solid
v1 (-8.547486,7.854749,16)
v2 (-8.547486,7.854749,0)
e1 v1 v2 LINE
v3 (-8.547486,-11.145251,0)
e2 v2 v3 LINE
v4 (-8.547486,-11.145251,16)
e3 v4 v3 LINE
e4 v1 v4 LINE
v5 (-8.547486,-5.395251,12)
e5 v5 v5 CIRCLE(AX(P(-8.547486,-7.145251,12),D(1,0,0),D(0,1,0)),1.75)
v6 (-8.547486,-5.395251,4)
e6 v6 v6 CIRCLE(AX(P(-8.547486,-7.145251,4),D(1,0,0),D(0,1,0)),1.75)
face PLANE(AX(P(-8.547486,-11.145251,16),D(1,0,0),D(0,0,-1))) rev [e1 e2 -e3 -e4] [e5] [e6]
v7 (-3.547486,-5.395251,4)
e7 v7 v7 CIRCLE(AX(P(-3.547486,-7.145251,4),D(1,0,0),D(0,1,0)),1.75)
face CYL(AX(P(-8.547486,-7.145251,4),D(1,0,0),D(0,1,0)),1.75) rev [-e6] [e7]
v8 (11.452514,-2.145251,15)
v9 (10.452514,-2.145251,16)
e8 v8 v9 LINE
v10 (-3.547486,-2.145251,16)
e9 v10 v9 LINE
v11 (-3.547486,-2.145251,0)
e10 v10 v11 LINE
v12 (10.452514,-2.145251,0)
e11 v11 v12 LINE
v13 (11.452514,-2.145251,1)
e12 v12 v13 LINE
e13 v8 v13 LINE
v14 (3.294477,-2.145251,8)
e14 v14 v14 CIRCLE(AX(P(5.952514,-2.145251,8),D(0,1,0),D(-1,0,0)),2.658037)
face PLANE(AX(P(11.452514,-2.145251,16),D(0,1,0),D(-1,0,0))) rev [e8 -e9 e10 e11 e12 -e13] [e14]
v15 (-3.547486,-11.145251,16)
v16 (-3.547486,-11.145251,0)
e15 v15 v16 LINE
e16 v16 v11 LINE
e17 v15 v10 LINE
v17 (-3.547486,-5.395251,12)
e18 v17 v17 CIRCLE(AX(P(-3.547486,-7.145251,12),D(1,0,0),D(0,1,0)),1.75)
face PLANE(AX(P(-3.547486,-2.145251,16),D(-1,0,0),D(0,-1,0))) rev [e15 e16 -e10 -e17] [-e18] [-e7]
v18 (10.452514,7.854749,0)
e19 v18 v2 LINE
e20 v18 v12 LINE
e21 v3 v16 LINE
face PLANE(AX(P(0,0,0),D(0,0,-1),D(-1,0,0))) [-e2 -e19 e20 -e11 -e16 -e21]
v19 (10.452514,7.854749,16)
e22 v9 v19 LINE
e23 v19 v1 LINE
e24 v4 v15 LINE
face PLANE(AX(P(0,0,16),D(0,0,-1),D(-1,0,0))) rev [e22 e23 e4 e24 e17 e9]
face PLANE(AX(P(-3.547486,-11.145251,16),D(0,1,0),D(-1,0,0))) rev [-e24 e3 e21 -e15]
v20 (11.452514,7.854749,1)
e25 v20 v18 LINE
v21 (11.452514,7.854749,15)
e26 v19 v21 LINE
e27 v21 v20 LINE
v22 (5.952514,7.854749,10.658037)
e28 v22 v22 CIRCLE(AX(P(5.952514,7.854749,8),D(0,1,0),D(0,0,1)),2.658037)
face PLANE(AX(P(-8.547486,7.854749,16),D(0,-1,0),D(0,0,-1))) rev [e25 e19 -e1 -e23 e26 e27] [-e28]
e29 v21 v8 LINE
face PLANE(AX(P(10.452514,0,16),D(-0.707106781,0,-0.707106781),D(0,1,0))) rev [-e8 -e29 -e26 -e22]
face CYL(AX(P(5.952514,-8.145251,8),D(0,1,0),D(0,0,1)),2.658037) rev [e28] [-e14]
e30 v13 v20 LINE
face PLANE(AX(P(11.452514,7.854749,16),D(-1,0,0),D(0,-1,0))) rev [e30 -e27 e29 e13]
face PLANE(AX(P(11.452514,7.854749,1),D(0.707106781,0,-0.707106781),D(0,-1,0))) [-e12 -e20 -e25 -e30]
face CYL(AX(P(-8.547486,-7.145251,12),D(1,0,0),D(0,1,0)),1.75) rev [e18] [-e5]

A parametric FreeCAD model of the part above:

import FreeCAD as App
import Part
import Sketcher


def edges_at(feature, points):
    """Names of the edges that pass closest to the given points."""
    edges = feature.Shape.Edges
    near = lambda p: min(range(len(edges)), key=lambda i: edges[i].distToShape(Part.Vertex(*p))[0])
    return sorted({f"Edge{near(p) + 1}" for p in points})


def add_polygon(sketch, points):
    """Adds a closed chain of lines whose ends are joined by coincident constraints."""
    first, n = sketch.GeometryCount, len(points)
    for a, b in zip(points, points[1:] + points[:1]):
        sketch.addGeometry(Part.LineSegment(App.Vector(*a, 0), App.Vector(*b, 0)), False)
    for i in range(n):
        sketch.addConstraint(Sketcher.Constraint("Coincident", first + i, 2, first + (i + 1) % n, 1))

doc = App.newDocument("Part")
body = doc.addObject("PartDesign::Body", "Body")

# Sketch on XY plane
sketch1 = body.newObject("Sketcher::SketchObject", "Sketch")
sketch1.AttachmentSupport = (doc.getObject("XY_Plane"), [""])
sketch1.MapMode = "FlatFace"
add_polygon(sketch1, [(11, 8), (-9, 8), (-9, -11), (-4, -11), (-4, -2), (11, -2)])  # lines 0-5
sketch1.addConstraint([
    Sketcher.Constraint("Horizontal", 0),
    Sketcher.Constraint("Vertical", 1),
    Sketcher.Constraint("Horizontal", 2),
    Sketcher.Constraint("Vertical", 3),
    Sketcher.Constraint("Horizontal", 4),
    Sketcher.Constraint("Vertical", 5),
    Sketcher.Constraint("DistanceX", 0, 2, 0, 1, 20.0),
    Sketcher.Constraint("DistanceX", 2, 1, 2, 2, 5.0),
    Sketcher.Constraint("DistanceY", 1, 2, 1, 1, 19.0),
    Sketcher.Constraint("DistanceY", 3, 1, 3, 2, 9.0),
    Sketcher.Constraint("DistanceY", -1, 1, 0, 2, 7.854749),
    Sketcher.Constraint("DistanceX", 0, 2, -1, 1, 8.547486),
])
pad1 = body.newObject("PartDesign::Pad", "Pad")
pad1.Profile = sketch1
pad1.Length = 16

# Sketch on XZ plane
sketch2 = body.newObject("Sketcher::SketchObject", "Sketch001")
sketch2.AttachmentSupport = (doc.getObject("XZ_Plane"), [""])
sketch2.MapMode = "FlatFace"
sketch2.AttachmentOffset = App.Placement(App.Vector(0, 0, -7.854749), App.Rotation())
sketch2.addGeometry(Part.Circle(App.Vector(6, 8, 0), App.Vector(0, 0, 1), 2.7), False)
sketch2.addConstraint([
    Sketcher.Constraint("DistanceY", -1, 1, 0, 3, 8.0),
    Sketcher.Constraint("Diameter", 0, 5.316074),
    Sketcher.Constraint("DistanceX", -1, 1, 0, 3, 5.952514),
])
pocket1 = body.newObject("PartDesign::Pocket", "Pocket")
pocket1.Profile = sketch2
pocket1.Length = 16
pocket1.Reversed = True

# Sketch on YZ plane
sketch3 = body.newObject("Sketcher::SketchObject", "Sketch002")
sketch3.AttachmentSupport = (doc.getObject("YZ_Plane"), [""])
sketch3.MapMode = "FlatFace"
sketch3.AttachmentOffset = App.Placement(App.Vector(0, 0, -3.547486), App.Rotation())
sketch3.addGeometry([
    Part.Circle(App.Vector(-7.1, 12, 0), App.Vector(0, 0, 1), 1.8),
    Part.Circle(App.Vector(-7.1, 4, 0), App.Vector(0, 0, 1), 1.8),
], False)
sketch3.addConstraint([
    Sketcher.Constraint("Equal", 0, 1),
    Sketcher.Constraint("Vertical", 0, 3, 1, 3),
    Sketcher.Constraint("Diameter", 0, 3.5),
    Sketcher.Constraint("DistanceY", -1, 1, 0, 3, 12.0),
    Sketcher.Constraint("DistanceY", -1, 1, 1, 3, 4.0),
    Sketcher.Constraint("DistanceX", 0, 3, -1, 1, 7.145251),
])
pocket2 = body.newObject("PartDesign::Pocket", "Pocket001")
pocket2.Profile = sketch3
pocket2.Length = 5
doc.recompute()

chamfer = body.newObject("PartDesign::Chamfer", "Chamfer")
chamfer.Base = (pocket2, edges_at(pocket2, [(11.453, 2.855, 16), (11.453, 2.855, 0)]))
chamfer.Size = 1

doc.recompute()
